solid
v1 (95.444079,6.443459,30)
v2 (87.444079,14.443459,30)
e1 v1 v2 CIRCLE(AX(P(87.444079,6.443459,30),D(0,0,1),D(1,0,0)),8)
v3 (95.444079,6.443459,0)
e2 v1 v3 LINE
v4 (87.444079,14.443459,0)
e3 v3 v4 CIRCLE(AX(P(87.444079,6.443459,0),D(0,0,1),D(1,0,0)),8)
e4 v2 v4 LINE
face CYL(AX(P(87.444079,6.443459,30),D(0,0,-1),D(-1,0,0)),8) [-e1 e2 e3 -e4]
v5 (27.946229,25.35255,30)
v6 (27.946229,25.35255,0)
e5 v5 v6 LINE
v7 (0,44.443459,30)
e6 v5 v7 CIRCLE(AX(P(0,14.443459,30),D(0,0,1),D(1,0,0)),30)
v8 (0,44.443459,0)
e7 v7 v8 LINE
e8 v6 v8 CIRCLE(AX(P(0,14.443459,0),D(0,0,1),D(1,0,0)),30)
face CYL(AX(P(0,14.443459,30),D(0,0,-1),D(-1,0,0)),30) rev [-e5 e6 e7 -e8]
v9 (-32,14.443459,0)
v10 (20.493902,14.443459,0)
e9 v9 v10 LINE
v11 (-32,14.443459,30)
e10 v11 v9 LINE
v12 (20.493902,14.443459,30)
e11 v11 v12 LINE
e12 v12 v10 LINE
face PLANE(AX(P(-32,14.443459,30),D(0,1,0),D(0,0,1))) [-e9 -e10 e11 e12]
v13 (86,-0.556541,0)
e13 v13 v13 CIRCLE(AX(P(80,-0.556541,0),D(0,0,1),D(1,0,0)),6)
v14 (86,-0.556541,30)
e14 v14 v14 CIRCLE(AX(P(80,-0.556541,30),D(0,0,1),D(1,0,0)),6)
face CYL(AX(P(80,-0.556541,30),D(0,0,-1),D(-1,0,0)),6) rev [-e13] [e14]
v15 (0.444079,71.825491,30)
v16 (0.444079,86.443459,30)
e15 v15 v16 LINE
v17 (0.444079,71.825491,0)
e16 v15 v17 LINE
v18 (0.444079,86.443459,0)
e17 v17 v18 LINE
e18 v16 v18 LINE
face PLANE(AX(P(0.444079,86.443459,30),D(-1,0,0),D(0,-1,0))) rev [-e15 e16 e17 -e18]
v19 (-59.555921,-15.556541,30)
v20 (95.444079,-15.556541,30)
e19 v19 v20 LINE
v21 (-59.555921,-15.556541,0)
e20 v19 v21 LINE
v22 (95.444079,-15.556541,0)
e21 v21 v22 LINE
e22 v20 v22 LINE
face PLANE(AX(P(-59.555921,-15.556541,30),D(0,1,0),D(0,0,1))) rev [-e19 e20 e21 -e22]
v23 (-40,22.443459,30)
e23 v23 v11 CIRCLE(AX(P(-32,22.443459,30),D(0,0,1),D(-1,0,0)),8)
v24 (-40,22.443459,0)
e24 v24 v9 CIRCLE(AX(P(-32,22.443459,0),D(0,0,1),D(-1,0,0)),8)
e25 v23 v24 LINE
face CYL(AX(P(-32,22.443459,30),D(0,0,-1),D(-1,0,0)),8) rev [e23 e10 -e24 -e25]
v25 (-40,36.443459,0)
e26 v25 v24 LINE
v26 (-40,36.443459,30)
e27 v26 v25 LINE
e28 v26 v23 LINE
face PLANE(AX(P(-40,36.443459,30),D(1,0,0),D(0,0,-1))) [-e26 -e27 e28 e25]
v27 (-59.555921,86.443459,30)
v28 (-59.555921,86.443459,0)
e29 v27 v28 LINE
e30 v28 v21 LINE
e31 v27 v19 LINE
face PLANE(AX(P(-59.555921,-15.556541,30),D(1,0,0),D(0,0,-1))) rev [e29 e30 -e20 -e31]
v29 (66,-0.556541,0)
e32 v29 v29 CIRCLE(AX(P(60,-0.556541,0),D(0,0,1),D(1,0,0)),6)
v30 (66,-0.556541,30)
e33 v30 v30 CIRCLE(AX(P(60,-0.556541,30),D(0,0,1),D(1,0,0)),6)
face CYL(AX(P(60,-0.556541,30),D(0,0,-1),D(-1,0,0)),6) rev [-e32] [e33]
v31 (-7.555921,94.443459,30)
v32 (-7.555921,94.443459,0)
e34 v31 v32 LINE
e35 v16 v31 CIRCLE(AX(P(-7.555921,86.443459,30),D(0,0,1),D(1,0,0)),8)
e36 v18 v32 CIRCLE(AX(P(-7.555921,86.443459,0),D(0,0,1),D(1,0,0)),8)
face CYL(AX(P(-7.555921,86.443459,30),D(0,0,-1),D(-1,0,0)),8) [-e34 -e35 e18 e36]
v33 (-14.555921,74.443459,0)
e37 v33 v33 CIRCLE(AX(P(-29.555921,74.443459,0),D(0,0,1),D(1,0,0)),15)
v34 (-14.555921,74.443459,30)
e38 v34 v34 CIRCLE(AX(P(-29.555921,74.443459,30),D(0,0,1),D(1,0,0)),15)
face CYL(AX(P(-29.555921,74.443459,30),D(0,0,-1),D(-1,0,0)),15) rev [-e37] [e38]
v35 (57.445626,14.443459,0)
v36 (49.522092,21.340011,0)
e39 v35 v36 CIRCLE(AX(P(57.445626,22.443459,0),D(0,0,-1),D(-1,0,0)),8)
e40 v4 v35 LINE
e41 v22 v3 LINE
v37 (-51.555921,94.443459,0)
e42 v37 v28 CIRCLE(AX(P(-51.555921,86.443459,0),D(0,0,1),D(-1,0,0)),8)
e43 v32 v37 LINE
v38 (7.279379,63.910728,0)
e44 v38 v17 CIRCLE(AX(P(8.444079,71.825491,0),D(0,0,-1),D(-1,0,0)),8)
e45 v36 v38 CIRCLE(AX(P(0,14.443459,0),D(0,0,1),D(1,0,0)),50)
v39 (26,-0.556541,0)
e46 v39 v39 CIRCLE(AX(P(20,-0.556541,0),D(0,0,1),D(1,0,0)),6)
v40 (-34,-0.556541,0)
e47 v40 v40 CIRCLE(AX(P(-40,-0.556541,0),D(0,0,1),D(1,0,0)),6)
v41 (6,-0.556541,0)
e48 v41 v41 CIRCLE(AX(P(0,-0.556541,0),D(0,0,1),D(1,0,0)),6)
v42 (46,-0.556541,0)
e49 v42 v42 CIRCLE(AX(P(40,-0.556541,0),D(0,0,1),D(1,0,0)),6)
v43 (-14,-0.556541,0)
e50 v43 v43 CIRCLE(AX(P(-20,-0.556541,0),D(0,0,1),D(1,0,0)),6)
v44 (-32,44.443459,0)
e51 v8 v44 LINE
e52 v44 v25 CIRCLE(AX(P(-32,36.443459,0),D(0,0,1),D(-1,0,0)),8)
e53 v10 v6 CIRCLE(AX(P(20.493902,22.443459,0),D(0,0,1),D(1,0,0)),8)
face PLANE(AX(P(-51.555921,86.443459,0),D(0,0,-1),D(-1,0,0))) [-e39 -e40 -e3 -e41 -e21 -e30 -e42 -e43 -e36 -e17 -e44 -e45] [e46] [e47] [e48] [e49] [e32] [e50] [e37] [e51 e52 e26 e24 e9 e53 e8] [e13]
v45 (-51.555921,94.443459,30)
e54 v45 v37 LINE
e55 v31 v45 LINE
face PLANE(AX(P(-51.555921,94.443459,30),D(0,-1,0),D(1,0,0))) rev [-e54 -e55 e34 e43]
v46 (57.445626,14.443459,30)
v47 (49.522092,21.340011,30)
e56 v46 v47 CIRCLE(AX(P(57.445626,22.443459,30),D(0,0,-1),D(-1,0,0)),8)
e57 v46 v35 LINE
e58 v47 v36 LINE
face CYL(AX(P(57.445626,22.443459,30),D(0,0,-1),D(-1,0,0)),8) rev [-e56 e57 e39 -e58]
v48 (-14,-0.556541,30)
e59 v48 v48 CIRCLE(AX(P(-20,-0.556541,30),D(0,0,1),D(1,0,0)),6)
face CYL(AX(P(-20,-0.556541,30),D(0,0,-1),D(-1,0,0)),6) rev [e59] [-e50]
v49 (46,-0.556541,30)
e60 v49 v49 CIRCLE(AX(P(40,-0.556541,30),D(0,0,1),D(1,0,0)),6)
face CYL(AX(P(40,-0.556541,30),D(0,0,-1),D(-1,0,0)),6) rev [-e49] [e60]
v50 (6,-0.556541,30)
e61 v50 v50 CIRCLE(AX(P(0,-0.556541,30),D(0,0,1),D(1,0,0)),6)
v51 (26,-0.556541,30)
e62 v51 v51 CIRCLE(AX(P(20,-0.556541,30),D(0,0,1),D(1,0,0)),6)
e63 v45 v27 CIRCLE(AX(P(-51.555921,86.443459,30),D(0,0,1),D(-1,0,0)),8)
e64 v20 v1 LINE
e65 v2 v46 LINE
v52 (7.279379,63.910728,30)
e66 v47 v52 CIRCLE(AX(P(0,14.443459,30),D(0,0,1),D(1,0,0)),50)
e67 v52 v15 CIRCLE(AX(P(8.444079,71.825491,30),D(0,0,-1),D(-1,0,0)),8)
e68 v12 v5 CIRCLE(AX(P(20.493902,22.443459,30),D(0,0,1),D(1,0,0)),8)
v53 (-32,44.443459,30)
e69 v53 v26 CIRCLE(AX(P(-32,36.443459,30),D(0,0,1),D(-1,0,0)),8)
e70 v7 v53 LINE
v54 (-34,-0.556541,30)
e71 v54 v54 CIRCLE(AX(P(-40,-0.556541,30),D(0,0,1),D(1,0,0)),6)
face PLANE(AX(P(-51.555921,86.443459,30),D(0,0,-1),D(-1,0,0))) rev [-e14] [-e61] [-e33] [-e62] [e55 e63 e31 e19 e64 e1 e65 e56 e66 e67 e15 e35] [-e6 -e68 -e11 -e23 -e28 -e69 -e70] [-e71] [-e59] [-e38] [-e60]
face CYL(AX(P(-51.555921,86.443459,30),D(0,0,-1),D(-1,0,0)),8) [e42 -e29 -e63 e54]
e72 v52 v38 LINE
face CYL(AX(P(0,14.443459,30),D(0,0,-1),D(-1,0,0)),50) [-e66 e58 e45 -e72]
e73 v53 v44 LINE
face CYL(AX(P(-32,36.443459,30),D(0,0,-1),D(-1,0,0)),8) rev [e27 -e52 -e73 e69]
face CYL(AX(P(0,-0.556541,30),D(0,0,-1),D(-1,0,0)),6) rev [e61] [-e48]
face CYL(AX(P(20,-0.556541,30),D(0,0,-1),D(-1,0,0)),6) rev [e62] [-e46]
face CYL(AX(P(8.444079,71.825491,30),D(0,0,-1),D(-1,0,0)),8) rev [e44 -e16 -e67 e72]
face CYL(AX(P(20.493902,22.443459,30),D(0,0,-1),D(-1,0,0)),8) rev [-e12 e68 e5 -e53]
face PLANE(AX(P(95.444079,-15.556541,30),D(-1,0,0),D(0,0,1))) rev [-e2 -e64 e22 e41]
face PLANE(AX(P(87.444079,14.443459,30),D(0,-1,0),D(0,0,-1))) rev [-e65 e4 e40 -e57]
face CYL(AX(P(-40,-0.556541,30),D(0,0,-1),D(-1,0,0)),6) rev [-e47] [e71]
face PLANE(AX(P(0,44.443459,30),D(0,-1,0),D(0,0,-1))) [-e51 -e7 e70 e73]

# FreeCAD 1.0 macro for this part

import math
import FreeCAD as App
import Part
import Sketcher
Q = App.Units.Quantity

doc = App.newDocument("Part")
body = doc.addObject("PartDesign::Body", "Body")

# Sketch on XY plane
sketch1 = body.newObject("Sketcher::SketchObject", "Sketch")
sketch1.AttachmentSupport = (doc.getObject("XY_Plane"), [""])
sketch1.MapMode = "FlatFace"
sketch1.addGeometry(Part.LineSegment(App.Vector(-60, -16, 0), App.Vector(95, -16, 0)), False)
sketch1.addGeometry(Part.LineSegment(App.Vector(95, -16, 0), App.Vector(95, 6, 0)), False)
sketch1.addGeometry(Part.ArcOfCircle(Part.Circle(App.Vector(87, 6, 0), App.Vector(0, 0, 1), 8), math.radians(0), math.radians(90)), False)
sketch1.addGeometry(Part.LineSegment(App.Vector(87, 14, 0), App.Vector(57, 14, 0)), False)
sketch1.addGeometry(Part.ArcOfCircle(Part.Circle(App.Vector(57, 22, 0), App.Vector(0, 0, 1), 8), math.radians(-172), math.radians(-90)), False)
sketch1.addGeometry(Part.ArcOfCircle(Part.Circle(App.Vector(0, 14, 0), App.Vector(0, 0, 1), 50), math.radians(8), math.radians(82)), False)
sketch1.addGeometry(Part.ArcOfCircle(Part.Circle(App.Vector(8, 72, 0), App.Vector(0, 0, 1), 8), math.radians(-180), math.radians(-98)), False)
sketch1.addGeometry(Part.LineSegment(App.Vector(0, 72, 0), App.Vector(0, 86, 0)), False)
sketch1.addGeometry(Part.ArcOfCircle(Part.Circle(App.Vector(-8, 86, 0), App.Vector(0, 0, 1), 8), math.radians(0), math.radians(90)), False)
sketch1.addGeometry(Part.LineSegment(App.Vector(-8, 94, 0), App.Vector(-52, 94, 0)), False)
sketch1.addGeometry(Part.ArcOfCircle(Part.Circle(App.Vector(-52, 86, 0), App.Vector(0, 0, 1), 8), math.radians(90), math.radians(180)), False)
sketch1.addGeometry(Part.LineSegment(App.Vector(-60, 86, 0), App.Vector(-60, -16, 0)), False)
sketch1.addGeometry(Part.Circle(App.Vector(-40, -1, 0), App.Vector(0, 0, 1), 6), False)
sketch1.addGeometry(Part.Circle(App.Vector(-20, -1, 0), App.Vector(0, 0, 1), 6), False)
sketch1.addGeometry(Part.Circle(App.Vector(0, -1, 0), App.Vector(0, 0, 1), 6), False)
sketch1.addGeometry(Part.LineSegment(App.Vector(-32, 44, 0), App.Vector(0, 44, 0)), False)
sketch1.addGeometry(Part.ArcOfCircle(Part.Circle(App.Vector(0, 14, 0), App.Vector(0, 0, 1), 30), math.radians(21), math.radians(90)), False)
sketch1.addGeometry(Part.ArcOfCircle(Part.Circle(App.Vector(20, 22, 0), App.Vector(0, 0, 1), 8), math.radians(-90), math.radians(21)), False)
sketch1.addGeometry(Part.LineSegment(App.Vector(20, 14, 0), App.Vector(-32, 14, 0)), False)
sketch1.addGeometry(Part.ArcOfCircle(Part.Circle(App.Vector(-32, 22, 0), App.Vector(0, 0, 1), 8), math.radians(180), math.radians(270)), False)
sketch1.addGeometry(Part.LineSegment(App.Vector(-40, 22, 0), App.Vector(-40, 36, 0)), False)
sketch1.addGeometry(Part.ArcOfCircle(Part.Circle(App.Vector(-32, 36, 0), App.Vector(0, 0, 1), 8), math.radians(90), math.radians(180)), False)
sketch1.addGeometry(Part.Circle(App.Vector(20, -1, 0), App.Vector(0, 0, 1), 6), False)
sketch1.addGeometry(Part.Circle(App.Vector(40, -1, 0), App.Vector(0, 0, 1), 6), False)
sketch1.addGeometry(Part.Circle(App.Vector(60, -1, 0), App.Vector(0, 0, 1), 6), False)
sketch1.addGeometry(Part.Circle(App.Vector(80, -1, 0), App.Vector(0, 0, 1), 6), False)
sketch1.addGeometry(Part.Circle(App.Vector(-30, 74, 0), App.Vector(0, 0, 1), 15), False)
sketch1.addConstraint(Sketcher.Constraint("Coincident", 0, 2, 1, 1))
sketch1.addConstraint(Sketcher.Constraint("Tangent", 1, 2, 2, 1))
sketch1.addConstraint(Sketcher.Constraint("Tangent", 2, 2, 3, 1))
sketch1.addConstraint(Sketcher.Constraint("Tangent", 3, 2, 4, 2))
sketch1.addConstraint(Sketcher.Constraint("Tangent", 4, 1, 5, 1))
sketch1.addConstraint(Sketcher.Constraint("Tangent", 5, 2, 6, 2))
sketch1.addConstraint(Sketcher.Constraint("Tangent", 6, 1, 7, 1))
sketch1.addConstraint(Sketcher.Constraint("Tangent", 7, 2, 8, 1))
sketch1.addConstraint(Sketcher.Constraint("Tangent", 8, 2, 9, 1))
sketch1.addConstraint(Sketcher.Constraint("Tangent", 9, 2, 10, 1))
sketch1.addConstraint(Sketcher.Constraint("Tangent", 10, 2, 11, 1))
sketch1.addConstraint(Sketcher.Constraint("Coincident", 11, 2, 0, 1))
sketch1.addConstraint(Sketcher.Constraint("Tangent", 15, 2, 16, 2))
sketch1.addConstraint(Sketcher.Constraint("Tangent", 16, 1, 17, 2))
sketch1.addConstraint(Sketcher.Constraint("Tangent", 17, 1, 18, 1))
sketch1.addConstraint(Sketcher.Constraint("Tangent", 18, 2, 19, 2))
sketch1.addConstraint(Sketcher.Constraint("Tangent", 19, 1, 20, 1))
sketch1.addConstraint(Sketcher.Constraint("Tangent", 20, 2, 21, 2))
sketch1.addConstraint(Sketcher.Constraint("Tangent", 21, 1, 15, 1))
sketch1.addConstraint(Sketcher.Constraint("Horizontal", 0))
sketch1.addConstraint(Sketcher.Constraint("Vertical", 1))
sketch1.addConstraint(Sketcher.Constraint("Horizontal", 3))
sketch1.addConstraint(Sketcher.Constraint("Vertical", 7))
sketch1.addConstraint(Sketcher.Constraint("Horizontal", 9))
sketch1.addConstraint(Sketcher.Constraint("Vertical", 11))
sketch1.addConstraint(Sketcher.Constraint("Horizontal", 15))
sketch1.addConstraint(Sketcher.Constraint("Horizontal", 18))
sketch1.addConstraint(Sketcher.Constraint("Vertical", 20))
sketch1.addConstraint(Sketcher.Constraint("Coincident", 16, 3, 5, 3))
sketch1.addConstraint(Sketcher.Constraint("Equal", 2, 4))
sketch1.addConstraint(Sketcher.Constraint("Equal", 4, 6))
sketch1.addConstraint(Sketcher.Constraint("Equal", 6, 8))
sketch1.addConstraint(Sketcher.Constraint("Equal", 8, 10))
sketch1.addConstraint(Sketcher.Constraint("Equal", 12, 13))
sketch1.addConstraint(Sketcher.Constraint("Equal", 13, 14))
sketch1.addConstraint(Sketcher.Constraint("Equal", 10, 17))
sketch1.addConstraint(Sketcher.Constraint("Equal", 17, 19))
sketch1.addConstraint(Sketcher.Constraint("Equal", 19, 21))
sketch1.addConstraint(Sketcher.Constraint("Equal", 14, 22))
sketch1.addConstraint(Sketcher.Constraint("Equal", 22, 23))
sketch1.addConstraint(Sketcher.Constraint("Equal", 23, 24))
sketch1.addConstraint(Sketcher.Constraint("Equal", 24, 25))
sketch1.addConstraint(Sketcher.Constraint("Symmetric", 13, 3, 22, 3, -2))
sketch1.addConstraint(Sketcher.Constraint("Symmetric", 12, 3, 23, 3, -2))
sketch1.addConstraint(Sketcher.Constraint("PointOnObject", 5, 3, -2))
sketch1.addConstraint(Sketcher.Constraint("PointOnObject", 14, 3, -2))
sketch1.addConstraint(Sketcher.Constraint("Horizontal", 12, 3, 13, 3))
sketch1.addConstraint(Sketcher.Constraint("Horizontal", 13, 3, 14, 3))
sketch1.addConstraint(Sketcher.Constraint("Horizontal", 4, 3, 17, 3))
sketch1.addConstraint(Sketcher.Constraint("Horizontal", 23, 3, 24, 3))
sketch1.addConstraint(Sketcher.Constraint("Horizontal", 24, 3, 25, 3))
sketch1.addConstraint(Sketcher.Constraint("Horizontal", 16, 3, 2, 2))
sketch1.addConstraint(Sketcher.Constraint("Vertical", 12, 3, 19, 1))
sketch1.addConstraint(Sketcher.Constraint("Diameter", 12, Q("12 mm")))
sketch1.addConstraint(Sketcher.Constraint("Diameter", 26, Q("30 mm")))
sketch1.addConstraint(Sketcher.Constraint("Radius", 2, Q("8 mm")))
sketch1.addConstraint(Sketcher.Constraint("Radius", 5, Q("50 mm")))
sketch1.addConstraint(Sketcher.Constraint("Radius", 16, Q("30 mm")))
sketch1.addConstraint(Sketcher.Constraint("DistanceX", 0, 1, 0, 2, Q("155 mm")))
sketch1.addConstraint(Sketcher.Constraint("DistanceX", 9, 2, 9, 1, Q("44 mm")))
sketch1.addConstraint(Sketcher.Constraint("DistanceX", 15, 1, 15, 2, Q("32 mm")))
sketch1.addConstraint(Sketcher.Constraint("DistanceY", 1, 1, 1, 2, Q("22 mm")))
sketch1.addConstraint(Sketcher.Constraint("DistanceY", 11, 2, 11, 1, Q("102 mm")))
sketch1.addConstraint(Sketcher.Constraint("DistanceX", 13, 3, -1, 1, Q("20 mm")))
sketch1.addConstraint(Sketcher.Constraint("DistanceX", -1, 1, 24, 3, Q("60 mm")))
sketch1.addConstraint(Sketcher.Constraint("DistanceX", -1, 1, 25, 3, Q("80 mm")))
sketch1.addConstraint(Sketcher.Constraint("DistanceY", 12, 3, 5, 3, Q("15 mm")))
sketch1.addConstraint(Sketcher.Constraint("DistanceX", 26, 3, 8, 3, Q("22 mm")))
sketch1.addConstraint(Sketcher.Constraint("DistanceY", 26, 3, 8, 3, Q("12 mm")))
sketch1.addConstraint(Sketcher.Constraint("DistanceY", 7, 1, 7, 2, Q("14.617969 mm")))
sketch1.addConstraint(Sketcher.Constraint("DistanceY", -1, 1, 2, 3, Q("6.443459 mm")))
pad1 = body.newObject("PartDesign::Pad", "Pad")
pad1.Profile = sketch1
pad1.Length = 30

doc.recompute()
